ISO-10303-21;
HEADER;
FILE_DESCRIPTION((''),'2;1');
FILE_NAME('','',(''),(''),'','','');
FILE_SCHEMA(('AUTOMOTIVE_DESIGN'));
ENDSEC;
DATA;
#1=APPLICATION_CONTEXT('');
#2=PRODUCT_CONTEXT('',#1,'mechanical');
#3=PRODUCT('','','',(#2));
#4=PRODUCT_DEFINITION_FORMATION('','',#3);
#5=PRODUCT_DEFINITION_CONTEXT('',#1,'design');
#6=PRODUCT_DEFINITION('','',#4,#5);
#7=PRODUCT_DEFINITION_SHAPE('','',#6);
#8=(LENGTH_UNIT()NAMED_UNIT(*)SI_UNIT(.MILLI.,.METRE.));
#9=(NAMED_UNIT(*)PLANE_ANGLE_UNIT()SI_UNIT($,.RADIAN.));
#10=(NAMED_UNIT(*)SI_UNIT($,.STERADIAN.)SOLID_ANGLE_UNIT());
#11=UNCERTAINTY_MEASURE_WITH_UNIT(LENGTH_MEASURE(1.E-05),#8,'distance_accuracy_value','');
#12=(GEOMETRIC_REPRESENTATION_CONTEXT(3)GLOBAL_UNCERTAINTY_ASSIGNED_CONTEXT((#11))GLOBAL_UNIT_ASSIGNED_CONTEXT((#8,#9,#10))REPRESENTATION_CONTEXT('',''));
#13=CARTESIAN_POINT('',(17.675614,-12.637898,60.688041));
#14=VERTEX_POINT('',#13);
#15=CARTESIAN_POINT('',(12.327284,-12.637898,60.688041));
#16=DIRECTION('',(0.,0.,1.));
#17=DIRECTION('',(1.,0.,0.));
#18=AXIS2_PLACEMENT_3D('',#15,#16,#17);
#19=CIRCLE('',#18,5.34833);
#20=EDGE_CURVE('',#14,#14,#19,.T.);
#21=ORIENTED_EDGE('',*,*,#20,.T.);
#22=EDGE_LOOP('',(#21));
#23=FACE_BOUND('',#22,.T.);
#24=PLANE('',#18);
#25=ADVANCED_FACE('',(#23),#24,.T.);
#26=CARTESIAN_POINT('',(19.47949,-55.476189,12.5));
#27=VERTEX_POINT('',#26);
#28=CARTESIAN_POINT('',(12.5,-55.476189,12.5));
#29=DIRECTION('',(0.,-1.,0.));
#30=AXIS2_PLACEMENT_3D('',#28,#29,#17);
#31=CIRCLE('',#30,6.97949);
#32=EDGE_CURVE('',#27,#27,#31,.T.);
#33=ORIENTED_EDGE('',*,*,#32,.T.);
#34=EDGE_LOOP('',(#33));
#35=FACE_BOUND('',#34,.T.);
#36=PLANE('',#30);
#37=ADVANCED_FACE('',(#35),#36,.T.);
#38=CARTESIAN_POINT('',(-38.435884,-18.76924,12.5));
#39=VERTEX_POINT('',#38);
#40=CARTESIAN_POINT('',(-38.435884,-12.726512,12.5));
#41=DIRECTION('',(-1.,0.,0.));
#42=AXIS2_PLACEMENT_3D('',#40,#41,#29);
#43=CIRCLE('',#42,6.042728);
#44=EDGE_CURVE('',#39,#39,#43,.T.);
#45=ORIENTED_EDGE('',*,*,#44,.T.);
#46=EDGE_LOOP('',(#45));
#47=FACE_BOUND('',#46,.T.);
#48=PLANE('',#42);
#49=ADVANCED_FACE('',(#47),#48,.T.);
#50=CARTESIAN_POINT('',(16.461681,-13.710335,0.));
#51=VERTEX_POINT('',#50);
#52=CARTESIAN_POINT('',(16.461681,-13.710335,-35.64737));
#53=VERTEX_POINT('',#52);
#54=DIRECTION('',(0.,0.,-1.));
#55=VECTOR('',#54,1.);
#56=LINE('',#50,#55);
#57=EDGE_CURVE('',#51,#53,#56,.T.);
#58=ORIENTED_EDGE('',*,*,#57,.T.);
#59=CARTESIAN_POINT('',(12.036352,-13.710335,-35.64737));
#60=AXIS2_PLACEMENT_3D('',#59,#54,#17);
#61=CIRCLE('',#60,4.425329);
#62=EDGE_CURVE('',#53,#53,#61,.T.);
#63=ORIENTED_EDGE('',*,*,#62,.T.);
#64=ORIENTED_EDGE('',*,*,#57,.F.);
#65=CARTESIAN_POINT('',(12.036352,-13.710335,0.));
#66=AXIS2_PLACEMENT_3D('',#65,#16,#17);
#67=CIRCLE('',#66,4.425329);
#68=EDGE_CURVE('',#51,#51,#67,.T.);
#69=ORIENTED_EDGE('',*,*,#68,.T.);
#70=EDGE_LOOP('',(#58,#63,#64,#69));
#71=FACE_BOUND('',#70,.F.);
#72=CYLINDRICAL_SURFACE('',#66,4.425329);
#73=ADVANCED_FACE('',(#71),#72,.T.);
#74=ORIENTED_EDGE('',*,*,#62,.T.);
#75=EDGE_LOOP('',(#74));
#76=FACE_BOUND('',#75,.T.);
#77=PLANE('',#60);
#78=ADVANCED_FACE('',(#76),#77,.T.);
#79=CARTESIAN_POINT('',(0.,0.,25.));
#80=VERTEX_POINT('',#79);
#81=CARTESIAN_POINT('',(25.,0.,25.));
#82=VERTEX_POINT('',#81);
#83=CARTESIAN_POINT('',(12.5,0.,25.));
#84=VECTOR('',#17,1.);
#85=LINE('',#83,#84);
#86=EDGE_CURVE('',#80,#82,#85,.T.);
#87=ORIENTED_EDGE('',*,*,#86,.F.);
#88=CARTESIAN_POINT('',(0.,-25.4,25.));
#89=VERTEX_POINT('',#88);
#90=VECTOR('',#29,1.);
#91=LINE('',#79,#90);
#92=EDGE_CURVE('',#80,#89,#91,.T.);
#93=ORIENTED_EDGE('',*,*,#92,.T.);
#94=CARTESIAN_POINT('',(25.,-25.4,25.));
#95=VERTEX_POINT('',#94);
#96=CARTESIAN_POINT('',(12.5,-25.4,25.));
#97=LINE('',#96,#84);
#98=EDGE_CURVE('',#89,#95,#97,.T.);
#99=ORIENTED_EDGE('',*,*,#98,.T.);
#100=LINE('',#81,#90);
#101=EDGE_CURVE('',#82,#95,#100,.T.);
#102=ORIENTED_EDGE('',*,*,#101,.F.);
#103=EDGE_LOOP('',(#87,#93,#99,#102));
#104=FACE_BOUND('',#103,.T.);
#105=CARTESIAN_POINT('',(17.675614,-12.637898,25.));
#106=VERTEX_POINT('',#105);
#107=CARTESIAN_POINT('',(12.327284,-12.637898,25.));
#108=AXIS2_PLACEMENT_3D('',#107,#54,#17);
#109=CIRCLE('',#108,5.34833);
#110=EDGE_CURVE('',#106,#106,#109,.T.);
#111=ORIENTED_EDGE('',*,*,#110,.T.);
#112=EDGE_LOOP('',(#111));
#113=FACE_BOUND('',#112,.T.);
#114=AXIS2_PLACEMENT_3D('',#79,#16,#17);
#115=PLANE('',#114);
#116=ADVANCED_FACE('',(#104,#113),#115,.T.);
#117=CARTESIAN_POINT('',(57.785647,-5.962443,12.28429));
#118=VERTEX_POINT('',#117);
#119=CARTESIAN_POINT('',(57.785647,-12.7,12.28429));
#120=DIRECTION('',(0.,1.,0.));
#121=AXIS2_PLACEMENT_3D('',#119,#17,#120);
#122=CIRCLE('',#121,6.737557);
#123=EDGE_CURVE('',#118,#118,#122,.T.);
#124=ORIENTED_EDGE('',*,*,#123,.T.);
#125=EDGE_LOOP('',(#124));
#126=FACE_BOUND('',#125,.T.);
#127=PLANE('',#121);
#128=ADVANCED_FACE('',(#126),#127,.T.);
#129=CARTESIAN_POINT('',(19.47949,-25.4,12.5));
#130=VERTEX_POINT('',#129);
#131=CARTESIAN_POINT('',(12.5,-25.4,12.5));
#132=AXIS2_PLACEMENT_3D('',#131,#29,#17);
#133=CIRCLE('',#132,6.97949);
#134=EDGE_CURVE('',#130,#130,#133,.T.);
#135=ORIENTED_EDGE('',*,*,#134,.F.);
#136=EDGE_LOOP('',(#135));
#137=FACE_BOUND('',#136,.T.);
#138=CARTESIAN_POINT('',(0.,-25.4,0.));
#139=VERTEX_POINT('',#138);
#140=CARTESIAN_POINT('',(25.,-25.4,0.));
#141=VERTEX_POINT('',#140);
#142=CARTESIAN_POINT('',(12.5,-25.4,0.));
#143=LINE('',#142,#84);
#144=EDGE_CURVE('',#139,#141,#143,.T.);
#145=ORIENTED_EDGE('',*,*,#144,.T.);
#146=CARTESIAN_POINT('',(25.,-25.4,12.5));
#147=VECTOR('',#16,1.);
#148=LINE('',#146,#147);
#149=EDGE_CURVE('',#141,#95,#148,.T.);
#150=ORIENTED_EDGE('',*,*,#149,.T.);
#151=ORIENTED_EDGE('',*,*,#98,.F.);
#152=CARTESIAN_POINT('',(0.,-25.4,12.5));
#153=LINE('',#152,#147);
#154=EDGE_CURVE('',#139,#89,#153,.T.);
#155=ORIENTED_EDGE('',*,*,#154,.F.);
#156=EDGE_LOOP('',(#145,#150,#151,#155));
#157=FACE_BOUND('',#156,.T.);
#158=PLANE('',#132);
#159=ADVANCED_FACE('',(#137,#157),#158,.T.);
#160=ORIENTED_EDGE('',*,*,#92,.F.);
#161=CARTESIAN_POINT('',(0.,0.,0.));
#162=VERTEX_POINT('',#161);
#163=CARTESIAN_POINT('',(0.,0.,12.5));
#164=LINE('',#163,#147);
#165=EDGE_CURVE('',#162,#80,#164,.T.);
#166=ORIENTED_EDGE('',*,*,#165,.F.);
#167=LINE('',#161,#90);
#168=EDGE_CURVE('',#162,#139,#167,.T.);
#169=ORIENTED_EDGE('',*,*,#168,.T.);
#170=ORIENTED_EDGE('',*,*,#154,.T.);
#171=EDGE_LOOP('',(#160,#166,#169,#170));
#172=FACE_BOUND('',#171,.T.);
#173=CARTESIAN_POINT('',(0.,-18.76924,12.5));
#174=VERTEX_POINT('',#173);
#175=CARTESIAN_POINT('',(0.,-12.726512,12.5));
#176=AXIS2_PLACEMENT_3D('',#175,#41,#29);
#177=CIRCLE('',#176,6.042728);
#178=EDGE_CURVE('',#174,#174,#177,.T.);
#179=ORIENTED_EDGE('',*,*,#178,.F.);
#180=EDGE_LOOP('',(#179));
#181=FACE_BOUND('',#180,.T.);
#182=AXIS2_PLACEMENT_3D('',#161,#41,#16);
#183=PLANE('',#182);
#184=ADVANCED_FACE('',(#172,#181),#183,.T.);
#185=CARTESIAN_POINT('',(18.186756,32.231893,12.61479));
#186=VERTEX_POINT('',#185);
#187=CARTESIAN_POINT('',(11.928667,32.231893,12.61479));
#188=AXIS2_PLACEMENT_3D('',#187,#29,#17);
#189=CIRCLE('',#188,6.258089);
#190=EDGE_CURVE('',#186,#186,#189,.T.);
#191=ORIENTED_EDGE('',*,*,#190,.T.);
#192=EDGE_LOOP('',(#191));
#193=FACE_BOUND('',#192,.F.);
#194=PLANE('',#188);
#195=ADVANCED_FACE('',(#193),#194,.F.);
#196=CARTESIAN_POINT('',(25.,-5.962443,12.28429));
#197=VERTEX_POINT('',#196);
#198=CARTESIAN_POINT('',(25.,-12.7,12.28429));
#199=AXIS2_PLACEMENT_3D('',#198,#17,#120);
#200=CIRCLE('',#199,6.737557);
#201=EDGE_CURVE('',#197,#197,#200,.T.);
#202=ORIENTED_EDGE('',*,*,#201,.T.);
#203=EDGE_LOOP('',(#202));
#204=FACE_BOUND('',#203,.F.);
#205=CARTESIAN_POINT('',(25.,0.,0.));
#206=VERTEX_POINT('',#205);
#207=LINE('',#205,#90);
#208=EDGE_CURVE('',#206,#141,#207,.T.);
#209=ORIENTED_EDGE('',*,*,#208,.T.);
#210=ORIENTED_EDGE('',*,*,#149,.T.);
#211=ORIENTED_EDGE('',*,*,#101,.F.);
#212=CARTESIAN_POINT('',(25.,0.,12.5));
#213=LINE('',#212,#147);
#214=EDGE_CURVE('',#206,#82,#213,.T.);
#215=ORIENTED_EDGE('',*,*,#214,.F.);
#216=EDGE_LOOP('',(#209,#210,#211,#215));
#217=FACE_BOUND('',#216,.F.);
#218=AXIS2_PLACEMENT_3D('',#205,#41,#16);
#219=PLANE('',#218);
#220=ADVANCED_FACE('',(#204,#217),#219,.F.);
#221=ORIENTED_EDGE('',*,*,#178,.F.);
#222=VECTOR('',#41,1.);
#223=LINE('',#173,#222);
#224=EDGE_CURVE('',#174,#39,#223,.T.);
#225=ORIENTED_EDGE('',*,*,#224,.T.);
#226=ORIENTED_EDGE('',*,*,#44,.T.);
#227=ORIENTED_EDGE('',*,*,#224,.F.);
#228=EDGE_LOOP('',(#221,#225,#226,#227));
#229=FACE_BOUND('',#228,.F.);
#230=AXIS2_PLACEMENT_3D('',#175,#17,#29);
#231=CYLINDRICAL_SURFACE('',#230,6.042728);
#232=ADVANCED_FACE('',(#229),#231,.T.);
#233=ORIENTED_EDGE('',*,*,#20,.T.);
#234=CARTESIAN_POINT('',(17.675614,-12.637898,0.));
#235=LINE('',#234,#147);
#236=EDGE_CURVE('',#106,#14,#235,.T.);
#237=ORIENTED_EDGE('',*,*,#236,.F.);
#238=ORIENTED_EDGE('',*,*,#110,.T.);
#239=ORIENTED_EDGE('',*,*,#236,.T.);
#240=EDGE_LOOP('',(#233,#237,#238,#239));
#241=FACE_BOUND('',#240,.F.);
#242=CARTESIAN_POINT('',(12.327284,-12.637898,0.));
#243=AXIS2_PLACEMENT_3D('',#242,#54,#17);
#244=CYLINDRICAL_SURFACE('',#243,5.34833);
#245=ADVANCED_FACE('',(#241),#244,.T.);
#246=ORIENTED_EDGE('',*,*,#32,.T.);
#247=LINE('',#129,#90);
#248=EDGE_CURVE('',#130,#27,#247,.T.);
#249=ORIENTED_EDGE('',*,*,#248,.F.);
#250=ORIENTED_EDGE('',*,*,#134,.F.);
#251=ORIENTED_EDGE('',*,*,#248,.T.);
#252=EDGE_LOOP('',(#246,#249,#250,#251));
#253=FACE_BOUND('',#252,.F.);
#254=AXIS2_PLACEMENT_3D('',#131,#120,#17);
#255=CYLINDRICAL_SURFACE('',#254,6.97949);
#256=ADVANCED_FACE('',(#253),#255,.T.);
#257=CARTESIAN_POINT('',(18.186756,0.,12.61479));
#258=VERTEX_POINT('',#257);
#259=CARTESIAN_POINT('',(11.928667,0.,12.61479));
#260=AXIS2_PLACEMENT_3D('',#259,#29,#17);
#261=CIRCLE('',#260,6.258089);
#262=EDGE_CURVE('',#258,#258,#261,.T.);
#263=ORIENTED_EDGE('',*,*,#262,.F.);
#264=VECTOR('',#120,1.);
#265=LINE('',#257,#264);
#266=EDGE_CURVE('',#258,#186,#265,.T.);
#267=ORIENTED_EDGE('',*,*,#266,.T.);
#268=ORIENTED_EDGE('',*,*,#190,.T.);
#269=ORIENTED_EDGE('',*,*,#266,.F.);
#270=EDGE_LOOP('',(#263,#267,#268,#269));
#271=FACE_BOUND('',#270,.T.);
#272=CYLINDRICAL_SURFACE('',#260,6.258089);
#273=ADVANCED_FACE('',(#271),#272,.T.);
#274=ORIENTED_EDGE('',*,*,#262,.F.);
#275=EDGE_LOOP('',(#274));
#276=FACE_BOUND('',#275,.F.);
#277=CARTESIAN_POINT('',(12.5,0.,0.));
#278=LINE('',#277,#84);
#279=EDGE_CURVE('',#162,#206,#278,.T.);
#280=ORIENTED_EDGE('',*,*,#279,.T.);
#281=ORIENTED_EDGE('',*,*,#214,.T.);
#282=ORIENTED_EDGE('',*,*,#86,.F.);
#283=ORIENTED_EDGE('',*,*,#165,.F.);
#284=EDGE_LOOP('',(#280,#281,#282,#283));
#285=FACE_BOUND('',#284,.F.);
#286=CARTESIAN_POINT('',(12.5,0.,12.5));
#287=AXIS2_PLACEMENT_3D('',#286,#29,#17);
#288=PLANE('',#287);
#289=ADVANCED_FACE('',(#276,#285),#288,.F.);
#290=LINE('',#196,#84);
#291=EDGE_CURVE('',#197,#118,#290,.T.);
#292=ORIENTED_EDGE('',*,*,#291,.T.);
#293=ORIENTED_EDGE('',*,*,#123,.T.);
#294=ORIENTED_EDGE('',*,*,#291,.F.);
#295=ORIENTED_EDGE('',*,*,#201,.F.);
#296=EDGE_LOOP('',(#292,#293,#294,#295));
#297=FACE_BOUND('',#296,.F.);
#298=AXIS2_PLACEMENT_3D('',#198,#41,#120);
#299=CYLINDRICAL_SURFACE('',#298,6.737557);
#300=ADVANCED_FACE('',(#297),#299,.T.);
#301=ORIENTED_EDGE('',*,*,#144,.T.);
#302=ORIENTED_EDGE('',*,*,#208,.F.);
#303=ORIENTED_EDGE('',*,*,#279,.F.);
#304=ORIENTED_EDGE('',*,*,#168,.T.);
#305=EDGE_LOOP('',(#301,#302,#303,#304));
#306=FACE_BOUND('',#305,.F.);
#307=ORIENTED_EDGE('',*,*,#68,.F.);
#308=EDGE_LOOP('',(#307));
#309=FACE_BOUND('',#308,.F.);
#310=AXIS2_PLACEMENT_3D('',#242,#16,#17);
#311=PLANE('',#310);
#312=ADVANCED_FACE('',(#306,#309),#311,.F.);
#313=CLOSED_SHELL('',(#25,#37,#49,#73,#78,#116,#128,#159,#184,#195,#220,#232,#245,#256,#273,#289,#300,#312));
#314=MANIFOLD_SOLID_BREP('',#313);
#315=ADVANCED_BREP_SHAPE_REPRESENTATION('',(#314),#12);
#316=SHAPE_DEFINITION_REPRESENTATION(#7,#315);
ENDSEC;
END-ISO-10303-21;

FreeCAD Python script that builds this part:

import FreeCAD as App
import Part
import Sketcher
from FreeCAD import Vector
Q = App.Units.Quantity

doc = App.newDocument("Part")
body = doc.addObject("PartDesign::Body", "Body")

# Sketch on XZ plane
sketch1 = body.newObject("Sketcher::SketchObject", "Sketch")
sketch1.AttachmentSupport = (doc.getObject("XZ_Plane"), [""])
sketch1.MapMode = "FlatFace"
sketch1.addGeometry([
    Part.LineSegment(Vector(0, 25, 0), Vector(0, 0, 0)),
    Part.LineSegment(Vector(0, 0, 0), Vector(25, 0, 0)),
    Part.LineSegment(Vector(25, 0, 0), Vector(25, 25, 0)),
    Part.LineSegment(Vector(25, 25, 0), Vector(0, 25, 0)),
], False)
sketch1.addConstraint([
    Sketcher.Constraint("Coincident", 0, 2, 1, 1),
    Sketcher.Constraint("Coincident", 1, 2, 2, 1),
    Sketcher.Constraint("Coincident", 2, 2, 3, 1),
    Sketcher.Constraint("Coincident", 3, 2, 0, 1),
    Sketcher.Constraint("Vertical", 0),
    Sketcher.Constraint("Horizontal", 1),
    Sketcher.Constraint("Vertical", 2),
    Sketcher.Constraint("Horizontal", 3),
    Sketcher.Constraint("Coincident", 0, 2, -1, 1),
    Sketcher.Constraint("Equal", 3, 0),
    Sketcher.Constraint("DistanceX", 1, 1, 1, 2, Q("25 mm")),
])
pad1 = body.newObject("PartDesign::Pad", "Pad")
pad1.Profile = sketch1
pad1.Length = 25.4

# Sketch on XY plane
sketch2 = body.newObject("Sketcher::SketchObject", "Sketch001")
sketch2.AttachmentSupport = (doc.getObject("XY_Plane"), [""])
sketch2.MapMode = "FlatFace"
sketch2.addGeometry(Part.Circle(Vector(12, -13, 0), Vector(0, 0, 1), 5), False)
sketch2.addConstraint([
    Sketcher.Constraint("Diameter", 0, Q("10.69666 mm")),
    Sketcher.Constraint("DistanceX", -1, 1, 0, 3, Q("12.327284 mm")),
    Sketcher.Constraint("DistanceY", 0, 3, -1, 1, Q("12.637898 mm")),
])
pad2 = body.newObject("PartDesign::Pad", "Pad001")
pad2.Profile = sketch2
pad2.Length = 60.688041

# Sketch on XY plane
sketch3 = body.newObject("Sketcher::SketchObject", "Sketch002")
sketch3.AttachmentSupport = (doc.getObject("XY_Plane"), [""])
sketch3.MapMode = "FlatFace"
sketch3.addGeometry(Part.Circle(Vector(12, -13.7, 0), Vector(0, 0, 1), 4.4), False)
sketch3.addConstraint([
    Sketcher.Constraint("Diameter", 0, Q("8.850658 mm")),
    Sketcher.Constraint("DistanceX", -1, 1, 0, 3, Q("12.036352 mm")),
    Sketcher.Constraint("DistanceY", 0, 3, -1, 1, Q("13.710335 mm")),
])
pad3 = body.newObject("PartDesign::Pad", "Pad002")
pad3.Profile = sketch3
pad3.Length = 35.64737
pad3.Reversed = True

# Sketch on XY plane
sketch4 = body.newObject("Sketcher::SketchObject", "Sketch003")
sketch4.AttachmentSupport = (doc.getObject("XY_Plane"), [""])
sketch4.MapMode = "FlatFace"
sketch4.addGeometry(Part.Circle(Vector(12, -12, 0), Vector(0, 0, 1), 6), False)
sketch4.addConstraint([
    Sketcher.Constraint("Diameter", 0, Q("11.542736 mm")),
    Sketcher.Constraint("DistanceX", -1, 1, 0, 3, Q("11.907944 mm")),
    Sketcher.Constraint("DistanceY", 0, 3, -1, 1, Q("12.260992 mm")),
])
pad4 = body.newObject("PartDesign::Pad", "Pad003")
pad4.Profile = sketch4
pad4.Length = 5.648091

# Sketch on XZ plane
sketch5 = body.newObject("Sketcher::SketchObject", "Sketch004")
sketch5.AttachmentSupport = (doc.getObject("XZ_Plane"), [""])
sketch5.MapMode = "FlatFace"
sketch5.addGeometry(Part.Circle(Vector(12, 13, 0), Vector(0, 0, 1), 6), False)
sketch5.addConstraint([
    Sketcher.Constraint("Diameter", 0, Q("12.516178 mm")),
    Sketcher.Constraint("DistanceY", -1, 1, 0, 3, Q("12.61479 mm")),
    Sketcher.Constraint("DistanceX", -1, 1, 0, 3, Q("11.928667 mm")),
])
pad5 = body.newObject("PartDesign::Pad", "Pad004")
pad5.Profile = sketch5
pad5.Length = 32.231893
pad5.Reversed = True

# Sketch on XZ plane
sketch6 = body.newObject("Sketcher::SketchObject", "Sketch005")
sketch6.AttachmentSupport = (doc.getObject("XZ_Plane"), [""])
sketch6.MapMode = "FlatFace"
sketch6.AttachmentOffset = App.Placement(Vector(0, 0, 25.4), App.Rotation())
sketch6.addGeometry(Part.Circle(Vector(12, 12, 0), Vector(0, 0, 1), 7), False)
sketch6.addConstraint([
    Sketcher.Constraint("DistanceX", -1, 1, 0, 3, Q("12.5 mm")),
    Sketcher.Constraint("DistanceY", -1, 1, 0, 3, Q("12.5 mm")),
    Sketcher.Constraint("Diameter", 0, Q("13.95898 mm")),
])
pad6 = body.newObject("PartDesign::Pad", "Pad005")
pad6.Profile = sketch6
pad6.Length = 30.076189

# Sketch on YZ plane
sketch7 = body.newObject("Sketcher::SketchObject", "Sketch006")
sketch7.AttachmentSupport = (doc.getObject("YZ_Plane"), [""])
sketch7.MapMode = "FlatFace"
sketch7.AttachmentOffset = App.Placement(Vector(0, 0, 25), App.Rotation())
sketch7.addGeometry(Part.Circle(Vector(-13, 12, 0), Vector(0, 0, 1), 7), False)
sketch7.addConstraint([
    Sketcher.Constraint("DistanceX", 0, 3, -1, 1, Q("12.7 mm")),
    Sketcher.Constraint("Diameter", 0, Q("13.475114 mm")),
    Sketcher.Constraint("DistanceY", -1, 1, 0, 3, Q("12.28429 mm")),
])
pad7 = body.newObject("PartDesign::Pad", "Pad006")
pad7.Profile = sketch7
pad7.Length = 32.785647

# Sketch on YZ plane
sketch8 = body.newObject("Sketcher::SketchObject", "Sketch007")
sketch8.AttachmentSupport = (doc.getObject("YZ_Plane"), [""])
sketch8.MapMode = "FlatFace"
sketch8.addGeometry(Part.Circle(Vector(-13, 12, 0), Vector(0, 0, 1), 6), False)
sketch8.addConstraint([
    Sketcher.Constraint("DistanceY", -1, 1, 0, 3, Q("12.5 mm")),
    Sketcher.Constraint("Diameter", 0, Q("12.085456 mm")),
    Sketcher.Constraint("DistanceX", 0, 3, -1, 1, Q("12.726512 mm")),
])
pad8 = body.newObject("PartDesign::Pad", "Pad007")
pad8.Profile = sketch8
pad8.Length = 38.435884
pad8.Reversed = True

doc.recompute()
